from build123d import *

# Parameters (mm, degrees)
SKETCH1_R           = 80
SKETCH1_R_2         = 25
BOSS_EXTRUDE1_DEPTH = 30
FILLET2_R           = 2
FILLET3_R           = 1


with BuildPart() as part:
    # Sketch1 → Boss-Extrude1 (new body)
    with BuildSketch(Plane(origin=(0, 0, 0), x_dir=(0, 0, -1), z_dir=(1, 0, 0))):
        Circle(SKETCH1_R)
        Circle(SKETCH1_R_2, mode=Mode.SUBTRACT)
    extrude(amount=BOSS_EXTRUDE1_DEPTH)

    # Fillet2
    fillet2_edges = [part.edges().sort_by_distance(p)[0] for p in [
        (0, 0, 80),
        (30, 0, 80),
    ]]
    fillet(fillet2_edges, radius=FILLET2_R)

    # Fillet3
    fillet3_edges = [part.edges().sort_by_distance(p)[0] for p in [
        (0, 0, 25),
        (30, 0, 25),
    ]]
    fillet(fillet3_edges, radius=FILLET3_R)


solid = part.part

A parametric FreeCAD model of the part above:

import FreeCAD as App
import Part
import Sketcher


def edges_at(feature, points):
    """Names of the edges that pass closest to the given points."""
    edges = feature.Shape.Edges
    near = lambda p: min(range(len(edges)), key=lambda i: edges[i].distToShape(Part.Vertex(*p))[0])
    return sorted({f"Edge{near(p) + 1}" for p in points})

doc = App.newDocument("Part")
body = doc.addObject("PartDesign::Body", "Body")

# Sketch on YZ plane
sketch1 = doc.addObject("Sketcher::SketchObject", "Sketch")
body.addObject(sketch1)
sketch1.AttachmentSupport = (doc.YZ_Plane, [""])
sketch1.MapMode = "FlatFace"
sketch1.addGeometry([
    Part.Circle(App.Vector(0, 0, 0), App.Vector(0, 0, 1), 80),
    Part.Circle(App.Vector(0, 0, 0), App.Vector(0, 0, 1), 25),
], False)
sketch1.addConstraint([
    Sketcher.Constraint("Coincident", 0, 3, -1, 1),
    Sketcher.Constraint("Coincident", 1, 3, -1, 1),
    Sketcher.Constraint("Diameter", 0, 160.0),
    Sketcher.Constraint("Diameter", 1, 50.0),
])
pad1 = doc.addObject("PartDesign::Pad", "Pad")
body.addObject(pad1)
pad1.Profile = sketch1
pad1.Length = 30
doc.recompute()

fillet = doc.addObject("PartDesign::Fillet", "Fillet")
body.addObject(fillet)
fillet.Base = (pad1, edges_at(pad1, [(0, 0, 80), (30, 0, 80)]))
fillet.Radius = 2
doc.recompute()

fillet2 = doc.addObject("PartDesign::Fillet", "Fillet001")
body.addObject(fillet2)
fillet2.Base = (fillet, edges_at(fillet, [(0, 0, 25), (30, 0, 25)]))
fillet2.Radius = 1

doc.recompute()
